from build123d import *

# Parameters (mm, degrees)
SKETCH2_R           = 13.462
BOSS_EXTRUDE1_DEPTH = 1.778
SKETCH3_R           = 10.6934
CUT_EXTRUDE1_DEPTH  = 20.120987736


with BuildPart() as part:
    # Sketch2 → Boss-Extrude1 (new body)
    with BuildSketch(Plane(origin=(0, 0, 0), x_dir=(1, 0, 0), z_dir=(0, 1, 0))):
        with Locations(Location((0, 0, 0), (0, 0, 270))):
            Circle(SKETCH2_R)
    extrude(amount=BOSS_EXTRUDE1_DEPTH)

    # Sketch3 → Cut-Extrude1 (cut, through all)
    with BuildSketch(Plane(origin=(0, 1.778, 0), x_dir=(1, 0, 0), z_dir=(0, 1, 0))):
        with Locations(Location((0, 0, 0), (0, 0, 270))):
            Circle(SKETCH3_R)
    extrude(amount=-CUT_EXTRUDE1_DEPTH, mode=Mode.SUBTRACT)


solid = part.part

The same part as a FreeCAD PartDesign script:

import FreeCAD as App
import Part
import Sketcher
Q = App.Units.Quantity

doc = App.newDocument("Part")
params = doc.addObject("Spreadsheet::Sheet", "Params")
for row, (alias, value) in enumerate([
    ("sketch1_diameter", "1.06 in"),
    ("pad1_length", "0.07 in"),
    ("sketch2_diameter", "0.842 in"),
], start=1):
    params.set(f"A{row}", alias)
    params.set(f"B{row}", "=" + value)
    params.setAlias(f"B{row}", alias)

body = doc.addObject("PartDesign::Body", "Body")

# Sketch on XZ plane
sketch1 = doc.addObject("Sketcher::SketchObject", "Sketch")
body.addObject(sketch1)
sketch1.AttachmentSupport = (doc.XZ_Plane, [""])
sketch1.MapMode = "FlatFace"
sketch1.addGeometry(Part.Circle(App.Vector(0, 0, 0), App.Vector(0, 0, 1), 13), False)
sketch1.addConstraint(Sketcher.Constraint("Coincident", 0, 3, -1, 1))
sketch1.addConstraint(Sketcher.Constraint("Diameter", 0, Q("1.06 in")))
sketch1.setExpression("Constraints[1]", "Params.sketch1_diameter")
pad1 = doc.addObject("PartDesign::Pad", "Pad")
body.addObject(pad1)
pad1.Profile = sketch1
pad1.setExpression("Length", "Params.pad1_length")
pad1.Reversed = True

# Sketch on XZ plane
sketch2 = doc.addObject("Sketcher::SketchObject", "Sketch001")
body.addObject(sketch2)
sketch2.AttachmentSupport = (doc.XZ_Plane, [""])
sketch2.MapMode = "FlatFace"
sketch2.AttachmentOffset = App.Placement(App.Vector(0, 0, -0.07 * 25.4), App.Rotation())
sketch2.addGeometry(Part.Circle(App.Vector(0, 0, 0), App.Vector(0, 0, 1), 11), False)
sketch2.addConstraint(Sketcher.Constraint("Coincident", 0, 3, -1, 1))
sketch2.addConstraint(Sketcher.Constraint("Diameter", 0, Q("0.842 in")))
sketch2.setExpression("Constraints[1]", "Params.sketch2_diameter")
pocket1 = doc.addObject("PartDesign::Pocket", "Pocket")
body.addObject(pocket1)
pocket1.Profile = sketch2
pocket1.Type = "ThroughAll"
pocket1.Reversed = True

doc.recompute()
